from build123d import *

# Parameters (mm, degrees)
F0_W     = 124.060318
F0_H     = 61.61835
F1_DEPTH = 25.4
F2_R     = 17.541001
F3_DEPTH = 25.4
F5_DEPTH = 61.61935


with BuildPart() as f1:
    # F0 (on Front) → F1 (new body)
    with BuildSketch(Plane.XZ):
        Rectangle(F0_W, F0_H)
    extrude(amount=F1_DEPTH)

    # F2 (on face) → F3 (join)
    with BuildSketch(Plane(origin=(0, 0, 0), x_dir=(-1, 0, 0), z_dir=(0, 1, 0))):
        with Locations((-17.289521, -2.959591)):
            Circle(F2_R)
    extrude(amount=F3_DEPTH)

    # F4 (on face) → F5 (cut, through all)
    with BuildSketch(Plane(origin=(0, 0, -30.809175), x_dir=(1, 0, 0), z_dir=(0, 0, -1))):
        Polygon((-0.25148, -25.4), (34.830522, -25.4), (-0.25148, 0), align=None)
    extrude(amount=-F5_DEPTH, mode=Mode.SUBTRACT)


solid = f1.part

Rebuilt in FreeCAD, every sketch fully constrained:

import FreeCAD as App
import Part
import Sketcher

V = App.Vector
Q = App.Units.Quantity


def add_polygon(sketch, points):
    """Adds a closed chain of lines whose ends are joined by coincident constraints."""
    first, n = sketch.GeometryCount, len(points)
    for a, b in zip(points, points[1:] + points[:1]):
        sketch.addGeometry(Part.LineSegment(App.Vector(*a, 0), App.Vector(*b, 0)), False)
    for i in range(n):
        sketch.addConstraint(Sketcher.Constraint("Coincident", first + i, 2, first + (i + 1) % n, 1))

doc = App.newDocument("Part")
body = doc.addObject("PartDesign::Body", "Body")

# Sketch on XZ plane
sketch1 = body.newObject("Sketcher::SketchObject", "Sketch")
sketch1.AttachmentSupport = (doc.getObject("XZ_Plane"), [""])
sketch1.MapMode = "FlatFace"
add_polygon(sketch1, [(-62, 31), (-62, -31), (62, -31), (62, 31)])  # lines 0-3
sketch1.addConstraint(Sketcher.Constraint("Vertical", 0))
sketch1.addConstraint(Sketcher.Constraint("Horizontal", 1))
sketch1.addConstraint(Sketcher.Constraint("Vertical", 2))
sketch1.addConstraint(Sketcher.Constraint("Horizontal", 3))
sketch1.addConstraint(Sketcher.Constraint("Symmetric", 0, 2, 2, 2, -1, 1))
sketch1.addConstraint(Sketcher.Constraint("DistanceY", 0, 2, 0, 1, 61.61835))
sketch1.addConstraint(Sketcher.Constraint("DistanceX", 1, 1, 1, 2, 124.060318))
pad1 = body.newObject("PartDesign::Pad", "Pad")
pad1.Profile = sketch1
pad1.Length = Q("1 in")

# Sketch on XZ plane
sketch2 = body.newObject("Sketcher::SketchObject", "Sketch001")
sketch2.AttachmentSupport = (doc.getObject("XZ_Plane"), [""])
sketch2.MapMode = "FlatFace"
sketch2.addGeometry(Part.Circle(V(17, -3, 0), V(0, 0, 1), 18), False)
sketch2.addConstraint(Sketcher.Constraint("Diameter", 0, 35.082002))
sketch2.addConstraint(Sketcher.Constraint("DistanceX", -1, 1, 0, 3, 17.289521))
sketch2.addConstraint(Sketcher.Constraint("DistanceY", 0, 3, -1, 1, 2.959591))
pad2 = body.newObject("PartDesign::Pad", "Pad001")
pad2.Profile = sketch2
pad2.Length = Q("1 in")
pad2.Reversed = True

# Sketch on XY plane
sketch3 = body.newObject("Sketcher::SketchObject", "Sketch002")
sketch3.AttachmentSupport = (doc.getObject("XY_Plane"), [""])
sketch3.MapMode = "FlatFace"
sketch3.AttachmentOffset = App.Placement(V(0, 0, -30.809175), App.Rotation())
add_polygon(sketch3, [(0, 25), (35, 25), (0, 0)])  # lines 0-2
sketch3.addConstraint(Sketcher.Constraint("Horizontal", 0))
sketch3.addConstraint(Sketcher.Constraint("Vertical", 2))
sketch3.addConstraint(Sketcher.Constraint("PointOnObject", 1, 2, -1))
sketch3.addConstraint(Sketcher.Constraint("DistanceY", 2, 1, 2, 2, Q("1 in")))
sketch3.addConstraint(Sketcher.Constraint("Distance", 1, 43.31174))
sketch3.addConstraint(Sketcher.Constraint("DistanceX", 1, 2, -1, 1, 0.25148))
pocket1 = body.newObject("PartDesign::Pocket", "Pocket")
pocket1.Profile = sketch3
pocket1.Type = "ThroughAll"
pocket1.Reversed = True

doc.recompute()
